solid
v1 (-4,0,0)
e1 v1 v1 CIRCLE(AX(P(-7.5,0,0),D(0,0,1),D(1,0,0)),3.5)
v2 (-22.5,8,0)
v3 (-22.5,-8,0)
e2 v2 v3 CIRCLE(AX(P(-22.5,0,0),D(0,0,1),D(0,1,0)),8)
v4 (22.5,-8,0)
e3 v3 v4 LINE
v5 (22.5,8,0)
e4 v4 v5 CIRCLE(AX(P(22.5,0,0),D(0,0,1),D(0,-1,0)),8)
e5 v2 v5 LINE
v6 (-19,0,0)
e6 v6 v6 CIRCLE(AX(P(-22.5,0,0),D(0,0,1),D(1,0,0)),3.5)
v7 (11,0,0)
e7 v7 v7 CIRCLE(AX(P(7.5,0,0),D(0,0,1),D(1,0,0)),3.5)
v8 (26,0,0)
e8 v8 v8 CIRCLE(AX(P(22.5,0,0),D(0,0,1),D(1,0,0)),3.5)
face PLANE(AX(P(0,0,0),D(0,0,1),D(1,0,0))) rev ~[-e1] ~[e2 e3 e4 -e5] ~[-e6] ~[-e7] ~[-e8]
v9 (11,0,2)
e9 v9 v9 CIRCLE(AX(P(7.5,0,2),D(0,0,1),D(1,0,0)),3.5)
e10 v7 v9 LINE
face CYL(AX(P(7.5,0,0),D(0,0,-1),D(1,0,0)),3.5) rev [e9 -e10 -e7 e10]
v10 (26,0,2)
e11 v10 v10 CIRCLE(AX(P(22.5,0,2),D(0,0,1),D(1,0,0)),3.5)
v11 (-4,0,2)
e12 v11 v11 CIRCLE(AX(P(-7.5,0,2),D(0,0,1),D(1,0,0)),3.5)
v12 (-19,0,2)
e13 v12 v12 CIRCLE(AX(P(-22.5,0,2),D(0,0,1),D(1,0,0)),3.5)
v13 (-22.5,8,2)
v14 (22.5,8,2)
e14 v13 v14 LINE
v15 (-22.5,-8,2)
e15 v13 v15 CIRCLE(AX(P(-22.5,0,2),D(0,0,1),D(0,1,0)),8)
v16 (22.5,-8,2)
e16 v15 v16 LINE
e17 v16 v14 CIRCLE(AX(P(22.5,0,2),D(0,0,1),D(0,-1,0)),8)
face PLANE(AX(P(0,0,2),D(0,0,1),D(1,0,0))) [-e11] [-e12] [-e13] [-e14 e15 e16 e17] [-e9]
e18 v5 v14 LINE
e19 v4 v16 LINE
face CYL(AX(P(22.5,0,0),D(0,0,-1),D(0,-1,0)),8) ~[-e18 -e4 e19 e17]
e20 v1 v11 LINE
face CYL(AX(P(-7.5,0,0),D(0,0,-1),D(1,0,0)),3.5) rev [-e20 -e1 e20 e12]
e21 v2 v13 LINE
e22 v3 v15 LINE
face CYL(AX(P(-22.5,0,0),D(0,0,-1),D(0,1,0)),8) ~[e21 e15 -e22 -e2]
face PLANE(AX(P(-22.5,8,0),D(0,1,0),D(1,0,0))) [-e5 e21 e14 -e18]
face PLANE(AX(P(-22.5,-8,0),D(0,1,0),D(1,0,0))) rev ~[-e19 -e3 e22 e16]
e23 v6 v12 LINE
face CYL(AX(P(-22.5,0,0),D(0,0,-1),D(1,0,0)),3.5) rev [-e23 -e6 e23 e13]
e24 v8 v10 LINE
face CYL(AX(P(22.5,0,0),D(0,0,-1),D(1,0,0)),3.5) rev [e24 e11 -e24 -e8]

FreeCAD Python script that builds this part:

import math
import FreeCAD as App
import Part
import Sketcher
from FreeCAD import Vector
Q = App.Units.Quantity

doc = App.newDocument("Part")
body = doc.addObject("PartDesign::Body", "Body")

# Sketch on XY plane
sketch1 = doc.addObject("Sketcher::SketchObject", "Sketch")
body.addObject(sketch1)
sketch1.AttachmentSupport = (doc.XY_Plane, [""])
sketch1.MapMode = "FlatFace"
sketch1.addGeometry(Part.ArcOfCircle(Part.Circle(Vector(-22.5, 0, 0), Vector(0, 0, 1), 8), math.radians(90), math.radians(270)), False)
sketch1.addGeometry(Part.LineSegment(Vector(-22.5, -8, 0), Vector(22.5, -8, 0)), False)
sketch1.addGeometry(Part.ArcOfCircle(Part.Circle(Vector(22.5, 0, 0), Vector(0, 0, 1), 8), math.radians(-90), math.radians(90)), False)
sketch1.addGeometry(Part.LineSegment(Vector(22.5, 8, 0), Vector(-22.5, 8, 0)), False)
sketch1.addGeometry(Part.Circle(Vector(-22.5, 0, 0), Vector(0, 0, 1), 3.5), False)
sketch1.addGeometry(Part.Circle(Vector(-7.5, 0, 0), Vector(0, 0, 1), 3.5), False)
sketch1.addGeometry(Part.Circle(Vector(7.5, 0, 0), Vector(0, 0, 1), 3.5), False)
sketch1.addGeometry(Part.Circle(Vector(22.5, 0, 0), Vector(0, 0, 1), 3.5), False)
sketch1.addConstraint(Sketcher.Constraint("Tangent", 0, 2, 1, 1))
sketch1.addConstraint(Sketcher.Constraint("Tangent", 1, 2, 2, 1))
sketch1.addConstraint(Sketcher.Constraint("Tangent", 2, 2, 3, 1))
sketch1.addConstraint(Sketcher.Constraint("Tangent", 3, 2, 0, 1))
sketch1.addConstraint(Sketcher.Constraint("Horizontal", 1))
sketch1.addConstraint(Sketcher.Constraint("Horizontal", 3))
sketch1.addConstraint(Sketcher.Constraint("Coincident", 4, 3, 0, 3))
sketch1.addConstraint(Sketcher.Constraint("Coincident", 7, 3, 2, 3))
sketch1.addConstraint(Sketcher.Constraint("Equal", 4, 5))
sketch1.addConstraint(Sketcher.Constraint("Equal", 5, 6))
sketch1.addConstraint(Sketcher.Constraint("Equal", 6, 7))
sketch1.addConstraint(Sketcher.Constraint("Symmetric", 0, 3, 2, 3, -1, 1))
sketch1.addConstraint(Sketcher.Constraint("Symmetric", 5, 3, 6, 3, -1, 1))
sketch1.addConstraint(Sketcher.Constraint("PointOnObject", 5, 3, -1))
sketch1.addConstraint(Sketcher.Constraint("Diameter", 4, Q("7 mm")))
sketch1.addConstraint(Sketcher.Constraint("Radius", 0, Q("8 mm")))
sketch1.addConstraint(Sketcher.Constraint("DistanceX", 1, 1, 1, 2, Q("45 mm")))
sketch1.addConstraint(Sketcher.Constraint("DistanceX", 0, 3, 5, 3, Q("15 mm")))
pad1 = doc.addObject("PartDesign::Pad", "Pad")
body.addObject(pad1)
pad1.Profile = sketch1
pad1.Length = 2

doc.recompute()
